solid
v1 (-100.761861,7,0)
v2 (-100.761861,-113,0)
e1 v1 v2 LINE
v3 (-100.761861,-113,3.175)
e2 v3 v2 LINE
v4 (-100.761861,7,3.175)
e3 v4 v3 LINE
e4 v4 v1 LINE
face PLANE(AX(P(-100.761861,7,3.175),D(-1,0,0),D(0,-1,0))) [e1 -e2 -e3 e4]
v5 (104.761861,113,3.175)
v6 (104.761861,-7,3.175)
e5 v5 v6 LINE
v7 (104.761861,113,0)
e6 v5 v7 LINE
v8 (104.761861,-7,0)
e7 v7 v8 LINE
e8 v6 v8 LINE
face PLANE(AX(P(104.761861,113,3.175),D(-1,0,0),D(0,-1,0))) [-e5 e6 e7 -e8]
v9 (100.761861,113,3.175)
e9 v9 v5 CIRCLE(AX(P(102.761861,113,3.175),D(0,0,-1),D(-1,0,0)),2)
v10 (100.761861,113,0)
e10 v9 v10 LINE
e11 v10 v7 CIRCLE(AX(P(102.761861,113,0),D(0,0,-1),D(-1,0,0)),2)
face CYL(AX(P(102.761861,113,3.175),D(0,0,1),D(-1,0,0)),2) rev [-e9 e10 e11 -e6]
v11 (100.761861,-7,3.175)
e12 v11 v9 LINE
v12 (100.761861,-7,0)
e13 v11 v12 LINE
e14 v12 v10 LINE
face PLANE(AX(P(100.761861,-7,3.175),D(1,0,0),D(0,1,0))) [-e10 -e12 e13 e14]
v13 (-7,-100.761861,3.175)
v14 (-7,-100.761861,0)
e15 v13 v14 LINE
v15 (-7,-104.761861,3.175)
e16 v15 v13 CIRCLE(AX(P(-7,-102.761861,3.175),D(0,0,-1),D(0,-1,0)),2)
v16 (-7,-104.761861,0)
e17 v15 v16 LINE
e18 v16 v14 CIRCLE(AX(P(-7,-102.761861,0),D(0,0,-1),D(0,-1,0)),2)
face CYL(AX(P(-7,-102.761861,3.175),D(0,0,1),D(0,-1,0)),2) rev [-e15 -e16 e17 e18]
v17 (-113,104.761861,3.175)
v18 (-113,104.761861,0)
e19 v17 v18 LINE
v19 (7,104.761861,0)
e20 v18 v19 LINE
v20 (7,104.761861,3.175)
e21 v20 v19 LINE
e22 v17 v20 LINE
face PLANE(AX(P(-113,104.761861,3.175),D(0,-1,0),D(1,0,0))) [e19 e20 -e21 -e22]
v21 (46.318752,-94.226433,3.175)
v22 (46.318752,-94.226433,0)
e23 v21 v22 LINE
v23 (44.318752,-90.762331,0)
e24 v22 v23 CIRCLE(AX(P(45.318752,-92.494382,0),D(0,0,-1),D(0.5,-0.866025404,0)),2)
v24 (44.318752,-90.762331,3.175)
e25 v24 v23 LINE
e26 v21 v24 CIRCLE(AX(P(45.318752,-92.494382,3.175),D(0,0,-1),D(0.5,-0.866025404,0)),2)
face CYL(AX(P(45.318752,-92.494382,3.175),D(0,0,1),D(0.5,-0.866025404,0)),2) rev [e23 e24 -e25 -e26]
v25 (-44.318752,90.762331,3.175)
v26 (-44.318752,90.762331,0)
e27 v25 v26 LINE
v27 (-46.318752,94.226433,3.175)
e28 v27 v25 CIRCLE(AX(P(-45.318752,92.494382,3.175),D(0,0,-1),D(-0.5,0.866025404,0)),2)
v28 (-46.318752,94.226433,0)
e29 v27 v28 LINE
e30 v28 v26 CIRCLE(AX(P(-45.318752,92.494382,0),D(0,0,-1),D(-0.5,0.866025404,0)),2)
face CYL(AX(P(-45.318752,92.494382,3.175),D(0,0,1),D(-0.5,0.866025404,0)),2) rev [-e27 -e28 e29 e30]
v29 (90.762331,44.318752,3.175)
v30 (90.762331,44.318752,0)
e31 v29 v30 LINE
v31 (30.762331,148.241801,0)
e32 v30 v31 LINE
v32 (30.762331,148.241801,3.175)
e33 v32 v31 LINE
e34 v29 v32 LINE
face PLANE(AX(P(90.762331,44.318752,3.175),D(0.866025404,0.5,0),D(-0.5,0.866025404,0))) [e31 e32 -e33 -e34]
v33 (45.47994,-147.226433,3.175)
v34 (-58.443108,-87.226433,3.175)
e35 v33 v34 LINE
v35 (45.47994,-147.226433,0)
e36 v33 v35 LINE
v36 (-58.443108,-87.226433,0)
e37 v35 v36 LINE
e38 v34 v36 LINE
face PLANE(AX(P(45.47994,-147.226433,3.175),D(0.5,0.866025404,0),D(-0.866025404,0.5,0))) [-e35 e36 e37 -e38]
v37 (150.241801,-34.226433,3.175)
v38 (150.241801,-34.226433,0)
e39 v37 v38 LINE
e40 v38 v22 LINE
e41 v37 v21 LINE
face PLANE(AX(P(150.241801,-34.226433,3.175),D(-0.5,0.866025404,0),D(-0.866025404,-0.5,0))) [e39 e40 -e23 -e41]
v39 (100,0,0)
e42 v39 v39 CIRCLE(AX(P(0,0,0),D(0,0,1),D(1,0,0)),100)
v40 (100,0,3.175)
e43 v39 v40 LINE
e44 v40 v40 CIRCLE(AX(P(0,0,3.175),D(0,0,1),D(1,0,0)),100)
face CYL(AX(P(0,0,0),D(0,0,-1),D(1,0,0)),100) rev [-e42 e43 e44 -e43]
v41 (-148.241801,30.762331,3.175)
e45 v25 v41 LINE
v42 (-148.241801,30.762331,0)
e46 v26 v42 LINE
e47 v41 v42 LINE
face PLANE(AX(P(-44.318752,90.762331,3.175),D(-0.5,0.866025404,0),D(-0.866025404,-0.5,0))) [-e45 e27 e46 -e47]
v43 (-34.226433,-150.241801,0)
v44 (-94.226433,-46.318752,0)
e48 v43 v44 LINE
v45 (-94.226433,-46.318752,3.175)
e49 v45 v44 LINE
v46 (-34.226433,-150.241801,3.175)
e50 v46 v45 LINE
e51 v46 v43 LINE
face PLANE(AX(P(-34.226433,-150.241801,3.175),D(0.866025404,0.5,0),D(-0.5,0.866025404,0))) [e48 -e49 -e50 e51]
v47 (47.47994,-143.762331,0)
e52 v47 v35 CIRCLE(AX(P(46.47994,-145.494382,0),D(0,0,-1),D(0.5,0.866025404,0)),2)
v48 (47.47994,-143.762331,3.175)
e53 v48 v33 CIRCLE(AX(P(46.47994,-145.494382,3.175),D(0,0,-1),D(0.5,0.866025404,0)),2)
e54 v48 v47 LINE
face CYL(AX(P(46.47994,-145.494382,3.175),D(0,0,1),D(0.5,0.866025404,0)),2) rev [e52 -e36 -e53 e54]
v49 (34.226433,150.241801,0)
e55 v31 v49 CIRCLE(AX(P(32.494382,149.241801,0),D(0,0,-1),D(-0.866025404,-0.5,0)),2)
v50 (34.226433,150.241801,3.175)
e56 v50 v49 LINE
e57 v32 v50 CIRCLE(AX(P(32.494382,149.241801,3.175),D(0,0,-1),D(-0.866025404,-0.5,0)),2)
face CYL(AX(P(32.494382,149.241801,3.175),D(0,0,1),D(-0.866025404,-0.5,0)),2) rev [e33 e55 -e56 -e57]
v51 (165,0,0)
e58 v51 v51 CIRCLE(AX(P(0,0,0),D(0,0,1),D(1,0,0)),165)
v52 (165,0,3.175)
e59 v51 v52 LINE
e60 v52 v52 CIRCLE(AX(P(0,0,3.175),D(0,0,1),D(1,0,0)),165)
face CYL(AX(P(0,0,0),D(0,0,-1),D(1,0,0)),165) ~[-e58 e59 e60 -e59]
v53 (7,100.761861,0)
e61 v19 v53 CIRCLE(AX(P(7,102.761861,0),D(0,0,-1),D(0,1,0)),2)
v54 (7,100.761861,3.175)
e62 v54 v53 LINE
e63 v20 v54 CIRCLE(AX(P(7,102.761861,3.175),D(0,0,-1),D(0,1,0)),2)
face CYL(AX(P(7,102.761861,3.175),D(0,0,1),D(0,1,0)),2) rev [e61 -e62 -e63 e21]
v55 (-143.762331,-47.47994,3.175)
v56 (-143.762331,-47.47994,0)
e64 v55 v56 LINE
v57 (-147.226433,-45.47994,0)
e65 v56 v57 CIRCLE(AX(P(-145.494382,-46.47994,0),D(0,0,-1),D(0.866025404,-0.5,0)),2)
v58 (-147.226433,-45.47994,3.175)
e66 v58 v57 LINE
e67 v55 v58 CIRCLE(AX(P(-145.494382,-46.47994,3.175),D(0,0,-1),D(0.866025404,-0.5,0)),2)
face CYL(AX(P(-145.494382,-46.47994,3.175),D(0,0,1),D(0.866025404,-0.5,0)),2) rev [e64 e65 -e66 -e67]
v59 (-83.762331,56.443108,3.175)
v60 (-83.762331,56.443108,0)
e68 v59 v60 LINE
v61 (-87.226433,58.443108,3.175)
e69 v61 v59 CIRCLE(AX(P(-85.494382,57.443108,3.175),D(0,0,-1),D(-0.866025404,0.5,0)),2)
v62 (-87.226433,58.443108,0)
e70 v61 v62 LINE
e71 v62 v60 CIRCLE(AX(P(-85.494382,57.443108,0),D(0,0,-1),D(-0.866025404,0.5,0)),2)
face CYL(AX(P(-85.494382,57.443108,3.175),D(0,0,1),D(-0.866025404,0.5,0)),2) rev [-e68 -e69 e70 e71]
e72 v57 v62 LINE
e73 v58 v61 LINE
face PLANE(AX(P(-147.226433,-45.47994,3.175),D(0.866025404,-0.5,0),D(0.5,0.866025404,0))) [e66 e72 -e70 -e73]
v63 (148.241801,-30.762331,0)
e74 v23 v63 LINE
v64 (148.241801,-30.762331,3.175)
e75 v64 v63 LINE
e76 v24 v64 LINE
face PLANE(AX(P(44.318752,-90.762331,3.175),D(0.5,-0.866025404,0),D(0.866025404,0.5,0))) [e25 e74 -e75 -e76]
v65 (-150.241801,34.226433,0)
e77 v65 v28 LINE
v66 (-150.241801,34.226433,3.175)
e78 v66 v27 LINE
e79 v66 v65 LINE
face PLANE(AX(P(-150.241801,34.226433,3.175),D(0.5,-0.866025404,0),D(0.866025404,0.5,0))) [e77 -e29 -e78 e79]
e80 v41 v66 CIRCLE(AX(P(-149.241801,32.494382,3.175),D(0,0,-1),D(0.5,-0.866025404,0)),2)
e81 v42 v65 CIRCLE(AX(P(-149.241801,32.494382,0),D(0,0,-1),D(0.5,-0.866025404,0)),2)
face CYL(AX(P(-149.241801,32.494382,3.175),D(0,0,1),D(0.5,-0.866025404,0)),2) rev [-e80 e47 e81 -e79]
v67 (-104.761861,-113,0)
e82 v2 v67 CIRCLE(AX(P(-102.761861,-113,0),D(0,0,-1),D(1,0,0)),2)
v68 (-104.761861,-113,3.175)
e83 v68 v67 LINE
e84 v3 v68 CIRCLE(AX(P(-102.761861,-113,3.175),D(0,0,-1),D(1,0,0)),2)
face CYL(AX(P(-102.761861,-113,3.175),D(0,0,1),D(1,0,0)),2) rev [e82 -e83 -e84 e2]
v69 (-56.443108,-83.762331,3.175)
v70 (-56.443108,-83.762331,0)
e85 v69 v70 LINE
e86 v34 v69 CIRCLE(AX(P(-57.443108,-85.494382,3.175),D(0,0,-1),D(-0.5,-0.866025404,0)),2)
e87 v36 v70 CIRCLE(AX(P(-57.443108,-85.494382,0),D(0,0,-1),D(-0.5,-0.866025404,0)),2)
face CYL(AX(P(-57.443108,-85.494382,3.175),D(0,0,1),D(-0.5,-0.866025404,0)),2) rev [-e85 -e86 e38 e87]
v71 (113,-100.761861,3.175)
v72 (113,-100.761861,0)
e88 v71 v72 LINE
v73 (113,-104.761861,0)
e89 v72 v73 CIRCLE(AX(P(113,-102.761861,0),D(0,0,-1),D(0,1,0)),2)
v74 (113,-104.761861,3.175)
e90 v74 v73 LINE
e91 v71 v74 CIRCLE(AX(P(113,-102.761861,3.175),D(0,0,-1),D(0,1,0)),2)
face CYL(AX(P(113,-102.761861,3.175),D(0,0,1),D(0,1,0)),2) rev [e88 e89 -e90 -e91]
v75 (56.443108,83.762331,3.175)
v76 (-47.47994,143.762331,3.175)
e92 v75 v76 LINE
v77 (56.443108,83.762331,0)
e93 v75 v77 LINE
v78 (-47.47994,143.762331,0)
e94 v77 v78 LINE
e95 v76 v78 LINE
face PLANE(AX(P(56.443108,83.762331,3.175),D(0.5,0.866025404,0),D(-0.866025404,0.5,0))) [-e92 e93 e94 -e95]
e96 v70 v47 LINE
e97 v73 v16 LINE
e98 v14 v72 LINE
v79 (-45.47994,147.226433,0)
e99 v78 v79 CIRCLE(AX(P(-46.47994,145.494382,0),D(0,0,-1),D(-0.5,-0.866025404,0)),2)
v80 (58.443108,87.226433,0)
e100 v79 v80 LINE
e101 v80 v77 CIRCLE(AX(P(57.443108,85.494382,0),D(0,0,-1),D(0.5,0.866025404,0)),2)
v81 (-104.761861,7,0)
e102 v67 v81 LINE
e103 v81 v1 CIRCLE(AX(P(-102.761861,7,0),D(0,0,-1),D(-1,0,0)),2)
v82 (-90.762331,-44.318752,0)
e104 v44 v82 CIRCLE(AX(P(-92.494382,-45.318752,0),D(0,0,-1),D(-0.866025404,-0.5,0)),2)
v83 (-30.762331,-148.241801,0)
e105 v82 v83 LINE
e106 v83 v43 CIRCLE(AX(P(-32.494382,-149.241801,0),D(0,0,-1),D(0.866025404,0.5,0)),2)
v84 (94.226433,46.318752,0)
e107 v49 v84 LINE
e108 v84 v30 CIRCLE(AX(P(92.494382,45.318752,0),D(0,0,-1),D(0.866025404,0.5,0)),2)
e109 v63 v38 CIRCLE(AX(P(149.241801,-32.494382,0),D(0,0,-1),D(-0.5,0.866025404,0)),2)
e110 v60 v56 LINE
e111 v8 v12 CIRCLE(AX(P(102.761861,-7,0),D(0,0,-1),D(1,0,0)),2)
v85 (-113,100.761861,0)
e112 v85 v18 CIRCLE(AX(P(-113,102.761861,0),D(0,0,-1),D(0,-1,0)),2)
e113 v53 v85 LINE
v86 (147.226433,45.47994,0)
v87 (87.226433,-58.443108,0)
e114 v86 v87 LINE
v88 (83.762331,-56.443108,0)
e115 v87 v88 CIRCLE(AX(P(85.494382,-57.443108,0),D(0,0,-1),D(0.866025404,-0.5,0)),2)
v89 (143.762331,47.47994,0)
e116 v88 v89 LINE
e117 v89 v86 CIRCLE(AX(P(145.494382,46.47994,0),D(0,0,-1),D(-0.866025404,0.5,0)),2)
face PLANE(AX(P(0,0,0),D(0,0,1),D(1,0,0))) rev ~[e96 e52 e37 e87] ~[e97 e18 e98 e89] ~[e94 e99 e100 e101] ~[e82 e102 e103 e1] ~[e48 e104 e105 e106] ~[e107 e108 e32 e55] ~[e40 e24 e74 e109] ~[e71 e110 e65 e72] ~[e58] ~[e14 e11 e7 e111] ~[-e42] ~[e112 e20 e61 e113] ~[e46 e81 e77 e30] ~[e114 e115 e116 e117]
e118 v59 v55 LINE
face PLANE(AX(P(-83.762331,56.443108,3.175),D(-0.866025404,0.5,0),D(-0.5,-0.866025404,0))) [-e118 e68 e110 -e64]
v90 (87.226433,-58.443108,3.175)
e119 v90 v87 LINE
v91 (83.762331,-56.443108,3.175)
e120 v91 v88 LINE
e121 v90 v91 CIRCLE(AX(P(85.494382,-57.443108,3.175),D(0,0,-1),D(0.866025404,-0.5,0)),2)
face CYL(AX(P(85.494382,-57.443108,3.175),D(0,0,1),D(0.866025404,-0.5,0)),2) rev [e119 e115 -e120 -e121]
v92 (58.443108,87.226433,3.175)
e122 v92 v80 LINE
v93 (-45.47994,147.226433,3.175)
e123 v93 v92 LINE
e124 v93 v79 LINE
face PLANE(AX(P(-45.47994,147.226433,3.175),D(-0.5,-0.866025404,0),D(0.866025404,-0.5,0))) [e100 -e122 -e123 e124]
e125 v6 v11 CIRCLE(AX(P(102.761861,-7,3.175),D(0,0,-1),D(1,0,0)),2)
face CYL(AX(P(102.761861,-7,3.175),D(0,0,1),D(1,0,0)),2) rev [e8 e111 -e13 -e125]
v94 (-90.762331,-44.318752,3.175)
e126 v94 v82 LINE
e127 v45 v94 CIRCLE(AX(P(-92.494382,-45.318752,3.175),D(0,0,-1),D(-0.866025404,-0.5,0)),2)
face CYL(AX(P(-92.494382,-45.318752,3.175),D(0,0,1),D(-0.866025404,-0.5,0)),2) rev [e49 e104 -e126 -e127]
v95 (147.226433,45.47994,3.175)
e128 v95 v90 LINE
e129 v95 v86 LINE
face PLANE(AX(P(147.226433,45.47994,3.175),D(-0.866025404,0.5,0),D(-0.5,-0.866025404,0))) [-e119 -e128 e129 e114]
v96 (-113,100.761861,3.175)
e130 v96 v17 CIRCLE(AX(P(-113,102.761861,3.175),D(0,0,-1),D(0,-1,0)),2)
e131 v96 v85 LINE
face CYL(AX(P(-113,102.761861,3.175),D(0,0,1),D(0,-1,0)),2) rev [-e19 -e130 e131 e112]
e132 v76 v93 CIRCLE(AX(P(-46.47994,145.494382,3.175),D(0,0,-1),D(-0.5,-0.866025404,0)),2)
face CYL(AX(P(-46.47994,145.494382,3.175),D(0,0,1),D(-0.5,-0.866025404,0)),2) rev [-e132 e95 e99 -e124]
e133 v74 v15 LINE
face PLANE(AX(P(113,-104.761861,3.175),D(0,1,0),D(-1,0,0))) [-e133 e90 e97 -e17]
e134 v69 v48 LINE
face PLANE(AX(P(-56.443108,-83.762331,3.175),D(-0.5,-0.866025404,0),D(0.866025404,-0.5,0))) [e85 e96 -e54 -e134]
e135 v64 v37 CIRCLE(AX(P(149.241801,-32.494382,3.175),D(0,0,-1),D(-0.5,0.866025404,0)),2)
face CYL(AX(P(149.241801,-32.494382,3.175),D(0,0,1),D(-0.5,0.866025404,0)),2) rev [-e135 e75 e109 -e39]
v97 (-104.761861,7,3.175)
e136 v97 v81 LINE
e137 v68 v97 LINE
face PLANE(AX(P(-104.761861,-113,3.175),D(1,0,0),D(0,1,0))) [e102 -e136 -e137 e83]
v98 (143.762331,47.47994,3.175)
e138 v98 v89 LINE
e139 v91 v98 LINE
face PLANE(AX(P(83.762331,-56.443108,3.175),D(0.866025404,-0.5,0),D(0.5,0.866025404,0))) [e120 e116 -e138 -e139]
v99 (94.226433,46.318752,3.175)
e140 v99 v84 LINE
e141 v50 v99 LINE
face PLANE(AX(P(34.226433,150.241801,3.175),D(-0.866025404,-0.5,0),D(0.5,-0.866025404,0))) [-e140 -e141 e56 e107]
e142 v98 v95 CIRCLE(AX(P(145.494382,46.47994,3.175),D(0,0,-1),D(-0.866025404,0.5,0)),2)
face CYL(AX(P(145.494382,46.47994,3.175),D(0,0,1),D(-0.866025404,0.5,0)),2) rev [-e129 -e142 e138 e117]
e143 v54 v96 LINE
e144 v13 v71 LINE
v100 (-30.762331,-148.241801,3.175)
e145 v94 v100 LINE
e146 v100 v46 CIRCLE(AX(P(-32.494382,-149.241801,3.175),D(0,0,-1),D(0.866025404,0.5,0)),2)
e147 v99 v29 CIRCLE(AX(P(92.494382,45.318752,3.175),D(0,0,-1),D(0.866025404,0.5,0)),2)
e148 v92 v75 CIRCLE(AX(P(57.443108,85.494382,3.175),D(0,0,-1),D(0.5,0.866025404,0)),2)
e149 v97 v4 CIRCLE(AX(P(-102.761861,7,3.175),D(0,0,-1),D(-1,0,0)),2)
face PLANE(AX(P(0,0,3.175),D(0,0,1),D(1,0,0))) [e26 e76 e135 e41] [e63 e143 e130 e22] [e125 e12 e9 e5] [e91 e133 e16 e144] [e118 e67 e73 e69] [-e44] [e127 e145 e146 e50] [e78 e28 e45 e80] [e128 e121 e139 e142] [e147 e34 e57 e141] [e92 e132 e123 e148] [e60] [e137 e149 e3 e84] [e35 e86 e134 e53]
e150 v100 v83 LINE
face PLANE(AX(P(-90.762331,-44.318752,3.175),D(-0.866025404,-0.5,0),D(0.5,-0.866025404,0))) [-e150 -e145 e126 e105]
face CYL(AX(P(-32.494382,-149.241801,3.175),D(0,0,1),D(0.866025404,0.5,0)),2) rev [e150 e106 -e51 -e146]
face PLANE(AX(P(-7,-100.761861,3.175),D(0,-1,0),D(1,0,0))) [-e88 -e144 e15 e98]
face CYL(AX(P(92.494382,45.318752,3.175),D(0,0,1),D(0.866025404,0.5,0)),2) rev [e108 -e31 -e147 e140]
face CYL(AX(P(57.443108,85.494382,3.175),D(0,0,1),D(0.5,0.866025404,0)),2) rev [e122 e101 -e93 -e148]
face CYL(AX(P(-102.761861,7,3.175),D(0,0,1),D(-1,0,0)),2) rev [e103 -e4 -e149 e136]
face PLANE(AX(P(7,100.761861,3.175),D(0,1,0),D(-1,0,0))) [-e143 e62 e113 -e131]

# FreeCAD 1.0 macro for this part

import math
import FreeCAD as App
import Part
import Sketcher
from FreeCAD import Vector
Q = App.Units.Quantity

doc = App.newDocument("Part")
params = doc.addObject("Spreadsheet::Sheet", "Params")
for row, (alias, value) in enumerate([
    ("sketch1_diameter", "330 mm"),
    ("sketch1_diameter2", "200 mm"),
    ("pad1_length", "3.175 mm"),
    ("sketch2_radius", "2 mm"),
    ("sketch2_width", "120 mm"),
    ("pocket1_length", "3.175 mm"),
], start=1):
    params.set(f"A{row}", alias)
    params.set(f"B{row}", "=" + value)
    params.setAlias(f"B{row}", alias)

body = doc.addObject("PartDesign::Body", "Body")

sketch1 = body.newObject("Sketcher::SketchObject", "Sketch")
sketch1.AttachmentSupport = (doc.getObject("XY_Plane"), [""])
sketch1.MapMode = "FlatFace"
sketch1.addGeometry(Part.Circle(Vector(0, 0, 0), Vector(0, 0, 1), 165), False)
sketch1.addGeometry(Part.Circle(Vector(0, 0, 0), Vector(0, 0, 1), 100), False)
sketch1.addConstraint(Sketcher.Constraint("Coincident", 0, 3, -1, 1))
sketch1.addConstraint(Sketcher.Constraint("Coincident", 1, 3, -1, 1))
sketch1.addConstraint(Sketcher.Constraint("Diameter", 0, Q("330 mm")))
sketch1.addConstraint(Sketcher.Constraint("Diameter", 1, Q("200 mm")))
sketch1.setExpression("Constraints[2]", "Params.sketch1_diameter")
sketch1.setExpression("Constraints[3]", "Params.sketch1_diameter2")
pad1 = body.newObject("PartDesign::Pad", "Pad")
pad1.Profile = sketch1
pad1.setExpression("Length", "Params.pad1_length")

sketch2 = body.newObject("Sketcher::SketchObject", "Sketch001")
sketch2.AttachmentSupport = (doc.getObject("XY_Plane"), [""])
sketch2.MapMode = "FlatFace"
sketch2.AttachmentOffset = App.Placement(Vector(0, 0, 3.175), App.Rotation())
sketch2.addGeometry(Part.LineSegment(Vector(7, 104.8, 0), Vector(-113, 104.8, 0)), False)
sketch2.addGeometry(Part.ArcOfCircle(Part.Circle(Vector(-113, 102.8, 0), Vector(0, 0, 1), 2), math.radians(90), math.radians(270)), False)
sketch2.addGeometry(Part.LineSegment(Vector(-113, 100.8, 0), Vector(7, 100.8, 0)), False)
sketch2.addGeometry(Part.ArcOfCircle(Part.Circle(Vector(7, 102.8, 0), Vector(0, 0, 1), 2), math.radians(-90), math.radians(90)), False)
sketch2.addConstraint(Sketcher.Constraint("Tangent", 0, 2, 1, 1))
sketch2.addConstraint(Sketcher.Constraint("Tangent", 1, 2, 2, 1))
sketch2.addConstraint(Sketcher.Constraint("Tangent", 2, 2, 3, 1))
sketch2.addConstraint(Sketcher.Constraint("Tangent", 3, 2, 0, 1))
sketch2.addConstraint(Sketcher.Constraint("Horizontal", 0))
sketch2.addConstraint(Sketcher.Constraint("Horizontal", 2))
sketch2.addConstraint(Sketcher.Constraint("Radius", 1, Q("2 mm")))
sketch2.addConstraint(Sketcher.Constraint("DistanceX", 0, 2, 0, 1, Q("120 mm")))
sketch2.addConstraint(Sketcher.Constraint("DistanceX", 1, 3, -1, 1, Q("113 mm")))
sketch2.addConstraint(Sketcher.Constraint("DistanceY", -1, 1, 1, 3, Q("102.761861 mm")))
sketch2.setExpression("Constraints[6]", "Params.sketch2_radius")
sketch2.setExpression("Constraints[7]", "Params.sketch2_width")
pocket1 = body.newObject("PartDesign::Pocket", "Pocket")
pocket1.Profile = sketch2
pocket1.setExpression("Length", "Params.pocket1_length")
doc.recompute()

polarpattern = body.newObject("PartDesign::PolarPattern", "PolarPattern")
polarpattern.Originals = [pocket1]
polarpattern.Axis = (doc.getObject("Z_Axis"), [""])
polarpattern.Angle = 360
polarpattern.Occurrences = 12
body.Tip = polarpattern

doc.recompute()
